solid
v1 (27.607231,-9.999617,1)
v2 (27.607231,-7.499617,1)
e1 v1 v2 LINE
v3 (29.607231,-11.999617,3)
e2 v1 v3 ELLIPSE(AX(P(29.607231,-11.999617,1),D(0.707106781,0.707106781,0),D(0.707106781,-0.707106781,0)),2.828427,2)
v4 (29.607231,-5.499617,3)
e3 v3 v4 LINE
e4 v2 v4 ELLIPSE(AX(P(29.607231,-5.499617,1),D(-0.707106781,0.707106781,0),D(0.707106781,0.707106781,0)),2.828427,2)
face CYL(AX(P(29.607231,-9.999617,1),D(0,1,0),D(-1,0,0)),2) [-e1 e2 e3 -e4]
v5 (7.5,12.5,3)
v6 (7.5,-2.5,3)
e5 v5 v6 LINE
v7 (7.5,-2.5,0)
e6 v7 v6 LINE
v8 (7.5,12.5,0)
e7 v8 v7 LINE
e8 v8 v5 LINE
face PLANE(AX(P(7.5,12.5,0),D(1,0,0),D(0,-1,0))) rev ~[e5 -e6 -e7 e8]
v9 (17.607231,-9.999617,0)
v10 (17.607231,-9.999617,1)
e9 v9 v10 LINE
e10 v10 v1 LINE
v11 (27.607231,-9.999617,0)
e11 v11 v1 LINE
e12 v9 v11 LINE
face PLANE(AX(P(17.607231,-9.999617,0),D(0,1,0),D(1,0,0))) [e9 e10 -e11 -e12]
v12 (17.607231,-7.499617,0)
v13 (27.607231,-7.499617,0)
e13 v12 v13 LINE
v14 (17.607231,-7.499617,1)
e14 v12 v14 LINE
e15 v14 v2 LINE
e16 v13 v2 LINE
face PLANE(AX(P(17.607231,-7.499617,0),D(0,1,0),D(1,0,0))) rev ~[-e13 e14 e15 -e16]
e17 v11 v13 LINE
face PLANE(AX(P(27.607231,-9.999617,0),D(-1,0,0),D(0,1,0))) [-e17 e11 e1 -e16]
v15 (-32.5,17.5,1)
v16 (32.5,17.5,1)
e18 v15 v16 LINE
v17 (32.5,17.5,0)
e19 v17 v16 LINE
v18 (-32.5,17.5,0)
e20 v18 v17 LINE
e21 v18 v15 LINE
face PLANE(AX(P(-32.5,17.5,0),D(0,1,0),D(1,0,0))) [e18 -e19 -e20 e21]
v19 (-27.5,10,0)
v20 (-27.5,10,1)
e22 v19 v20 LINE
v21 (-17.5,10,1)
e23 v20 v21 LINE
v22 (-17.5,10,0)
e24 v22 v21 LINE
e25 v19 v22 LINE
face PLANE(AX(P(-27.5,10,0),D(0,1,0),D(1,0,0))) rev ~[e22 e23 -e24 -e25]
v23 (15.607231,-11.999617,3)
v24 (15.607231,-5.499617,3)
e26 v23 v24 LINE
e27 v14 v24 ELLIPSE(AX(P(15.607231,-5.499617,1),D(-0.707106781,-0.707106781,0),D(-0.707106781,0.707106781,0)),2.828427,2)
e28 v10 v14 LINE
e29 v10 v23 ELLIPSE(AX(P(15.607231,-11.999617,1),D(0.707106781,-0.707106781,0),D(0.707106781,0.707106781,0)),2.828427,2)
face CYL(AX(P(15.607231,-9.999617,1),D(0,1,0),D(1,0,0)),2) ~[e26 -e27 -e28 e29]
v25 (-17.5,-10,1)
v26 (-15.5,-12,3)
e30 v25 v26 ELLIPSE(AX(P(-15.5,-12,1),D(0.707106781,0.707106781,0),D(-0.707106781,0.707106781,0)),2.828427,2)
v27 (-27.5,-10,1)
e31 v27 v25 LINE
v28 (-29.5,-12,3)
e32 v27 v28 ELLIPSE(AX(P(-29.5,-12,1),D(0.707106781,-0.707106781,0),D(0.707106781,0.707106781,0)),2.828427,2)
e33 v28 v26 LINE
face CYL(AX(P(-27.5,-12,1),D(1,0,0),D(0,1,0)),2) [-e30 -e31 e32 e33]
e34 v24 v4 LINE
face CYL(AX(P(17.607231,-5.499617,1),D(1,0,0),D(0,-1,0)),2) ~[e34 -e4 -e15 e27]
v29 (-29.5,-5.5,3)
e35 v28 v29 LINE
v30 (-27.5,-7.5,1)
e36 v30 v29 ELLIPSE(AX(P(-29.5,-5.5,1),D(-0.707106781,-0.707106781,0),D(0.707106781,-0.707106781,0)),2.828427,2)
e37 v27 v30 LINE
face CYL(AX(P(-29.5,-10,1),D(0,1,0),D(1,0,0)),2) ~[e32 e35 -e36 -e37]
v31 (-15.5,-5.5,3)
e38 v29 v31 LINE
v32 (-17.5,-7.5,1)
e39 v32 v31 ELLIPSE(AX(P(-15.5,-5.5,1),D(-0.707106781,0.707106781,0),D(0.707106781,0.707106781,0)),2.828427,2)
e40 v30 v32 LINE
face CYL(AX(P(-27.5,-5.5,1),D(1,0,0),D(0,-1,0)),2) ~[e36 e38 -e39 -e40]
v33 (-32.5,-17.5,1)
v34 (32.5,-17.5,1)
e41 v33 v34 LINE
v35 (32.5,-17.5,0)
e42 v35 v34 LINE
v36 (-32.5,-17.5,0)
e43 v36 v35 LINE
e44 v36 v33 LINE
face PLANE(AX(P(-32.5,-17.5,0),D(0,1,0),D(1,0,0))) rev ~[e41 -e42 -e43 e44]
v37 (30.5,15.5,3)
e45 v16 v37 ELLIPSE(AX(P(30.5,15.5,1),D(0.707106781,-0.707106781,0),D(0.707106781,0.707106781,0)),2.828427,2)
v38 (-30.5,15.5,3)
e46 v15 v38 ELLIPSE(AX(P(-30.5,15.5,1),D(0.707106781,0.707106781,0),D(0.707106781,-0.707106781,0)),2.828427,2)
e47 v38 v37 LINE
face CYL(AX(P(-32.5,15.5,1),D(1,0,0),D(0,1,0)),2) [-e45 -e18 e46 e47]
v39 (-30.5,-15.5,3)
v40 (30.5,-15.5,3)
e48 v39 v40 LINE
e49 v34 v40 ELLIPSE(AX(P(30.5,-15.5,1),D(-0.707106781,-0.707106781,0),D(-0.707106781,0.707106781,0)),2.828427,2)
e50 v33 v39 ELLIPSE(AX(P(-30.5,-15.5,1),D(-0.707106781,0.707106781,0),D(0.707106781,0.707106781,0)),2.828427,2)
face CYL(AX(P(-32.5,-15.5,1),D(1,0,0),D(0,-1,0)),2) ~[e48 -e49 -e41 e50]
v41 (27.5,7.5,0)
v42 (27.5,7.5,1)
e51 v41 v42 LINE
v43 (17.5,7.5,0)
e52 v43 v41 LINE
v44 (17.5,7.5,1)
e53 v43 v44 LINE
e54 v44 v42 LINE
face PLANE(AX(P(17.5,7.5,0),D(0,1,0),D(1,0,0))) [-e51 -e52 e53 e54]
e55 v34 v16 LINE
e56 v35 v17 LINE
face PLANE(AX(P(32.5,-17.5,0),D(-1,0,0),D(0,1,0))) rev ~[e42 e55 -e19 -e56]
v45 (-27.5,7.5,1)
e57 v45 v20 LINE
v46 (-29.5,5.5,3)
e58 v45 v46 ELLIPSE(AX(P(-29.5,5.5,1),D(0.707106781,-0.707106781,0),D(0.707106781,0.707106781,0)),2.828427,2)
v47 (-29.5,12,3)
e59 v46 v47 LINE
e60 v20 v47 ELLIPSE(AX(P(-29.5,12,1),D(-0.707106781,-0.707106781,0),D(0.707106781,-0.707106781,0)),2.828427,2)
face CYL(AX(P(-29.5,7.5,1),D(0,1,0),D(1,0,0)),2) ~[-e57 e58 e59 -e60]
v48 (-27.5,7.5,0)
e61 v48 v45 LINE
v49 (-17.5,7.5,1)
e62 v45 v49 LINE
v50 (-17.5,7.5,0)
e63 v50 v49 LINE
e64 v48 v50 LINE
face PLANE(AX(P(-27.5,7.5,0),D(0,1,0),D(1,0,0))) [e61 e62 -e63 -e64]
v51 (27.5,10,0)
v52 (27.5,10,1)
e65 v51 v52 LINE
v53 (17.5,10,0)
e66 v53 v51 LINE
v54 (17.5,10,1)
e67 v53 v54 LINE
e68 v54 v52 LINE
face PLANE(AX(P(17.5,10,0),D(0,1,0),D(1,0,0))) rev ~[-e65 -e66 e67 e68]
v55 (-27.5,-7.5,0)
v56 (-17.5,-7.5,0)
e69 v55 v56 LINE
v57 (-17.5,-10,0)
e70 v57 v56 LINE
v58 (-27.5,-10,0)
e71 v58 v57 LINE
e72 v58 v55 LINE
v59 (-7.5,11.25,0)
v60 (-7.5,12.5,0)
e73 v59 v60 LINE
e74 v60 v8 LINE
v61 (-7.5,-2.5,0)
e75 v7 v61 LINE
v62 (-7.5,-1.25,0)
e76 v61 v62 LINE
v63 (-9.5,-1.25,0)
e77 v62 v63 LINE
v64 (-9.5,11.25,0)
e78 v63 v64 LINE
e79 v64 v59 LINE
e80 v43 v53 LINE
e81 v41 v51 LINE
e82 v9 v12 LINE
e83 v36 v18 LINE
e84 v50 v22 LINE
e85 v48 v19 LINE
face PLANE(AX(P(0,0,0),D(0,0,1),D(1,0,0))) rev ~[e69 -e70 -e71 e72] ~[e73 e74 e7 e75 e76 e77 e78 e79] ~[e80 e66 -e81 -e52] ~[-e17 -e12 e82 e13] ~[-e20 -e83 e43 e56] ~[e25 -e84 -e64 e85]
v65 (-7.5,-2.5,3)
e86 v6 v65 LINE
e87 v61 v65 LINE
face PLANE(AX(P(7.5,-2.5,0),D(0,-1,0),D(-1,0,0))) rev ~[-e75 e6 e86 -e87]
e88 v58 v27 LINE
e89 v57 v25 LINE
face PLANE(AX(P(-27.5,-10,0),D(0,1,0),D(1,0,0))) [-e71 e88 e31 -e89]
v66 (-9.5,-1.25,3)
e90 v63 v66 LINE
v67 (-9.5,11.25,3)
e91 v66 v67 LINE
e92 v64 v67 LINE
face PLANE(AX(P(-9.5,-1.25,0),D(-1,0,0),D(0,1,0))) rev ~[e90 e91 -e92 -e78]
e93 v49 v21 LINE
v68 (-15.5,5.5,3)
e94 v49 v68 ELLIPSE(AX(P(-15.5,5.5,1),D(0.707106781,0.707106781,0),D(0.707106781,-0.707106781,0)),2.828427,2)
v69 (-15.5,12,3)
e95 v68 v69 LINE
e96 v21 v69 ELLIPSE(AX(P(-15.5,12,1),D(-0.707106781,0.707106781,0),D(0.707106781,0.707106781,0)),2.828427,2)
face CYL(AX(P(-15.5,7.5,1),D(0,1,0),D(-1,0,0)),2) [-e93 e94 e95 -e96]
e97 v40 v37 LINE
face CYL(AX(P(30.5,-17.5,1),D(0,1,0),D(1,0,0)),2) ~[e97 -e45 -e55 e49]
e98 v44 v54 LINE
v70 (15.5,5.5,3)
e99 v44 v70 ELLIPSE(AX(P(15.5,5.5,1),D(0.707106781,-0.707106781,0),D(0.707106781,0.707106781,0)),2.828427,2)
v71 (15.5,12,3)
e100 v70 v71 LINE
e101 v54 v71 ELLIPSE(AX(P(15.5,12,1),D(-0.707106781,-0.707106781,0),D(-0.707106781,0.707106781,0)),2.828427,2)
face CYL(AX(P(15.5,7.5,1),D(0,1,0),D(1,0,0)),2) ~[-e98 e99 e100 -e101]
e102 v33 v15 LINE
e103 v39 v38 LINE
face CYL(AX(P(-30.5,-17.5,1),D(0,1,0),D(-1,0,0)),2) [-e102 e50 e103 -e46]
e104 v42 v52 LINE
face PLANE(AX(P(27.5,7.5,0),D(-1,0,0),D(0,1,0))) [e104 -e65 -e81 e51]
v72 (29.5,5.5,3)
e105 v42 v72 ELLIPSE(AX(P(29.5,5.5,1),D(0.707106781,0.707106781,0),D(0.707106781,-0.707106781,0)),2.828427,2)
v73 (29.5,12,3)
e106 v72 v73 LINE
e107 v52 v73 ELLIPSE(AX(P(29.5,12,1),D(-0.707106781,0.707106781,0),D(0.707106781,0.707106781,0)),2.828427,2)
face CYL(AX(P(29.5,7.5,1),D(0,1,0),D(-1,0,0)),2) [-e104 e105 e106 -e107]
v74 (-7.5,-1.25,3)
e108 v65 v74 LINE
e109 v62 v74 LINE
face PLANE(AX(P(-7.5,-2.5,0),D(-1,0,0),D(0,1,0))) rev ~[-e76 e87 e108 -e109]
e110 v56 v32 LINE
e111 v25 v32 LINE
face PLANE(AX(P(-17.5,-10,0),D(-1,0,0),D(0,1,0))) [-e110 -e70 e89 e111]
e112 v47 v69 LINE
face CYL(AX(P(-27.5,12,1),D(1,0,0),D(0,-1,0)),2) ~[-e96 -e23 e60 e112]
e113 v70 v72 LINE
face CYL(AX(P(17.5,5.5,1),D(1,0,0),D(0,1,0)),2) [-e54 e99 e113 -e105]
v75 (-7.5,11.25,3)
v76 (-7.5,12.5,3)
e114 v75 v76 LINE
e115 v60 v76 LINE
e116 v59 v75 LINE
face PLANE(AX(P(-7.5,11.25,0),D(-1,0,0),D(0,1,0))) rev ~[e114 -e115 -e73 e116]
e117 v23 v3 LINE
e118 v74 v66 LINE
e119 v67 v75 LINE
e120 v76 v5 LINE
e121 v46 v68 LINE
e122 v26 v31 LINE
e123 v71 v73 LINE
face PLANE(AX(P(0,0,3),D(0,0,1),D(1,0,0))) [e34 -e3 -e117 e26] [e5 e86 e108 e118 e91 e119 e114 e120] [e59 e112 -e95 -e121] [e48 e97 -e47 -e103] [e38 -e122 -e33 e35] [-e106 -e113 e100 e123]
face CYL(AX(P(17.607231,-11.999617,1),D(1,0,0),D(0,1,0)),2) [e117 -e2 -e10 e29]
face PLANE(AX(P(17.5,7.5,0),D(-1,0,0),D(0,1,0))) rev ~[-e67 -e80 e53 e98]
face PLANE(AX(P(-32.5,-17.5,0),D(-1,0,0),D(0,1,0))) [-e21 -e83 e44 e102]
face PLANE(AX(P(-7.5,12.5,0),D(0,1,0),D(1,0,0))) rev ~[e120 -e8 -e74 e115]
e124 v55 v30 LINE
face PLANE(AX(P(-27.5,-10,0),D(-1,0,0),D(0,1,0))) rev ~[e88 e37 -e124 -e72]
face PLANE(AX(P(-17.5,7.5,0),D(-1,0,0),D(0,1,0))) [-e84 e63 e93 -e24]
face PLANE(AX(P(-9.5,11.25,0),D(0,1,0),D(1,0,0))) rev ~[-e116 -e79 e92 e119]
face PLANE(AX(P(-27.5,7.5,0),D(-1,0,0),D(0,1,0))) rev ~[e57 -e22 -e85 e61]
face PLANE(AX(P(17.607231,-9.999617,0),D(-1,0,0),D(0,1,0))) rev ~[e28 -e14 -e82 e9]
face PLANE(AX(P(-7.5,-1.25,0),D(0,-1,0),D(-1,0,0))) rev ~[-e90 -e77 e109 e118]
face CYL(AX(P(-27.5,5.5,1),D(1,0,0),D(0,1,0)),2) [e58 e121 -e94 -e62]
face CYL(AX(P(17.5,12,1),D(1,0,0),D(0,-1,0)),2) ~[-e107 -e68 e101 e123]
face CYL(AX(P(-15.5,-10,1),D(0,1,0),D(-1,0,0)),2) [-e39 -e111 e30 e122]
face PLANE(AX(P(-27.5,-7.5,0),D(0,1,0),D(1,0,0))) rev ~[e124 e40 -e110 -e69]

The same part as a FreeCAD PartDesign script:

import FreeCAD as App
import Part
import Sketcher


def edges_at(feature, points):
    """Names of the edges that pass closest to the given points."""
    edges = feature.Shape.Edges
    near = lambda p: min(range(len(edges)), key=lambda i: edges[i].distToShape(Part.Vertex(*p))[0])
    return sorted({f"Edge{near(p) + 1}" for p in points})

doc = App.newDocument("Part")
body = doc.addObject("PartDesign::Body", "Body")

sketch1 = doc.addObject("Sketcher::SketchObject", "Sketch")
body.addObject(sketch1)
sketch1.AttachmentSupport = (doc.XY_Plane, [""])
sketch1.MapMode = "FlatFace"
sketch1.addGeometry([
    Part.LineSegment(App.Vector(-32.5, 17.5, 0), App.Vector(-32.5, -17.5, 0)),
    Part.LineSegment(App.Vector(-32.5, -17.5, 0), App.Vector(32.5, -17.5, 0)),
    Part.LineSegment(App.Vector(32.5, -17.5, 0), App.Vector(32.5, 17.5, 0)),
    Part.LineSegment(App.Vector(32.5, 17.5, 0), App.Vector(-32.5, 17.5, 0)),
    Part.LineSegment(App.Vector(-17.5, -10, 0), App.Vector(-27.5, -10, 0)),
    Part.LineSegment(App.Vector(-27.5, -10, 0), App.Vector(-27.5, -7.5, 0)),
    Part.LineSegment(App.Vector(-27.5, -7.5, 0), App.Vector(-17.5, -7.5, 0)),
    Part.LineSegment(App.Vector(-17.5, -7.5, 0), App.Vector(-17.5, -10, 0)),
    Part.LineSegment(App.Vector(27.6, -10, 0), App.Vector(17.6, -10, 0)),
    Part.LineSegment(App.Vector(17.6, -10, 0), App.Vector(17.6, -7.5, 0)),
    Part.LineSegment(App.Vector(17.6, -7.5, 0), App.Vector(27.6, -7.5, 0)),
    Part.LineSegment(App.Vector(27.6, -7.5, 0), App.Vector(27.6, -10, 0)),
    Part.LineSegment(App.Vector(7.5, 12.5, 0), App.Vector(7.5, -2.5, 0)),
    Part.LineSegment(App.Vector(7.5, -2.5, 0), App.Vector(-7.5, -2.5, 0)),
    Part.LineSegment(App.Vector(-7.5, -2.5, 0), App.Vector(-7.5, -1.2, 0)),
    Part.LineSegment(App.Vector(-7.5, -1.2, 0), App.Vector(-9.5, -1.2, 0)),
    Part.LineSegment(App.Vector(-9.5, -1.2, 0), App.Vector(-9.5, 11.2, 0)),
    Part.LineSegment(App.Vector(-9.5, 11.2, 0), App.Vector(-7.5, 11.2, 0)),
    Part.LineSegment(App.Vector(-7.5, 11.2, 0), App.Vector(-7.5, 12.5, 0)),
    Part.LineSegment(App.Vector(-7.5, 12.5, 0), App.Vector(7.5, 12.5, 0)),
    Part.LineSegment(App.Vector(-17.5, 7.5, 0), App.Vector(-27.5, 7.5, 0)),
    Part.LineSegment(App.Vector(-27.5, 7.5, 0), App.Vector(-27.5, 10, 0)),
    Part.LineSegment(App.Vector(-27.5, 10, 0), App.Vector(-17.5, 10, 0)),
    Part.LineSegment(App.Vector(-17.5, 10, 0), App.Vector(-17.5, 7.5, 0)),
    Part.LineSegment(App.Vector(27.5, 7.5, 0), App.Vector(17.5, 7.5, 0)),
    Part.LineSegment(App.Vector(17.5, 7.5, 0), App.Vector(17.5, 10, 0)),
    Part.LineSegment(App.Vector(17.5, 10, 0), App.Vector(27.5, 10, 0)),
    Part.LineSegment(App.Vector(27.5, 10, 0), App.Vector(27.5, 7.5, 0)),
], False)
sketch1.addConstraint([
    Sketcher.Constraint("Coincident", 0, 2, 1, 1),
    Sketcher.Constraint("Coincident", 1, 2, 2, 1),
    Sketcher.Constraint("Coincident", 2, 2, 3, 1),
    Sketcher.Constraint("Coincident", 3, 2, 0, 1),
    Sketcher.Constraint("Coincident", 4, 2, 5, 1),
    Sketcher.Constraint("Coincident", 5, 2, 6, 1),
    Sketcher.Constraint("Coincident", 6, 2, 7, 1),
    Sketcher.Constraint("Coincident", 7, 2, 4, 1),
    Sketcher.Constraint("Coincident", 8, 2, 9, 1),
    Sketcher.Constraint("Coincident", 9, 2, 10, 1),
    Sketcher.Constraint("Coincident", 10, 2, 11, 1),
    Sketcher.Constraint("Coincident", 11, 2, 8, 1),
    Sketcher.Constraint("Coincident", 12, 2, 13, 1),
    Sketcher.Constraint("Coincident", 13, 2, 14, 1),
    Sketcher.Constraint("Coincident", 14, 2, 15, 1),
    Sketcher.Constraint("Coincident", 15, 2, 16, 1),
    Sketcher.Constraint("Coincident", 16, 2, 17, 1),
    Sketcher.Constraint("Coincident", 17, 2, 18, 1),
    Sketcher.Constraint("Coincident", 18, 2, 19, 1),
    Sketcher.Constraint("Coincident", 19, 2, 12, 1),
    Sketcher.Constraint("Coincident", 20, 2, 21, 1),
    Sketcher.Constraint("Coincident", 21, 2, 22, 1),
    Sketcher.Constraint("Coincident", 22, 2, 23, 1),
    Sketcher.Constraint("Coincident", 23, 2, 20, 1),
    Sketcher.Constraint("Coincident", 24, 2, 25, 1),
    Sketcher.Constraint("Coincident", 25, 2, 26, 1),
    Sketcher.Constraint("Coincident", 26, 2, 27, 1),
    Sketcher.Constraint("Coincident", 27, 2, 24, 1),
    Sketcher.Constraint("Vertical", 0),
    Sketcher.Constraint("Horizontal", 1),
    Sketcher.Constraint("Vertical", 2),
    Sketcher.Constraint("Horizontal", 3),
    Sketcher.Constraint("Horizontal", 4),
    Sketcher.Constraint("Vertical", 5),
    Sketcher.Constraint("Horizontal", 6),
    Sketcher.Constraint("Vertical", 7),
    Sketcher.Constraint("Horizontal", 8),
    Sketcher.Constraint("Vertical", 9),
    Sketcher.Constraint("Horizontal", 10),
    Sketcher.Constraint("Vertical", 11),
    Sketcher.Constraint("Vertical", 12),
    Sketcher.Constraint("Horizontal", 13),
    Sketcher.Constraint("Vertical", 14),
    Sketcher.Constraint("Horizontal", 15),
    Sketcher.Constraint("Vertical", 16),
    Sketcher.Constraint("Horizontal", 17),
    Sketcher.Constraint("Vertical", 18),
    Sketcher.Constraint("Horizontal", 19),
    Sketcher.Constraint("Horizontal", 20),
    Sketcher.Constraint("Vertical", 21),
    Sketcher.Constraint("Horizontal", 22),
    Sketcher.Constraint("Vertical", 23),
    Sketcher.Constraint("Horizontal", 24),
    Sketcher.Constraint("Vertical", 25),
    Sketcher.Constraint("Horizontal", 26),
    Sketcher.Constraint("Vertical", 27),
    Sketcher.Constraint("Symmetric", 0, 2, 2, 2, -1, 1),
    Sketcher.Constraint("Symmetric", 6, 2, 24, 2, -1, 1),
    Sketcher.Constraint("Symmetric", 4, 2, 26, 2, -1, 1),
    Sketcher.Constraint("Symmetric", 23, 2, 24, 2, -2),
    Sketcher.Constraint("Symmetric", 21, 2, 26, 2, -2),
    Sketcher.Constraint("Vertical", 14, 2, 17, 2),
    Sketcher.Constraint("Equal", 6, 8),
    Sketcher.Constraint("Equal", 7, 9),
    Sketcher.Constraint("Equal", 19, 12),
    Sketcher.Constraint("Equal", 14, 18),
    Sketcher.Constraint("DistanceX", 1, 1, 1, 2, 65.0),
    Sketcher.Constraint("DistanceX", 4, 2, 4, 1, 10.0),
    Sketcher.Constraint("DistanceX", 13, 2, 13, 1, 15.0),
    Sketcher.Constraint("DistanceX", 15, 2, 15, 1, 2.0),
    Sketcher.Constraint("DistanceY", 0, 2, 0, 1, 35.0),
    Sketcher.Constraint("DistanceY", 5, 1, 5, 2, 2.5),
    Sketcher.Constraint("DistanceY", 16, 1, 16, 2, 12.5),
    Sketcher.Constraint("DistanceY", 4, 2, -1, 1, 10.0),
    Sketcher.Constraint("DistanceX", 0, 2, 4, 2, 5.0),
    Sketcher.Constraint("DistanceX", 6, 2, 12, 2, 25.0),
    Sketcher.Constraint("DistanceY", 6, 2, 12, 2, 5.0),
    Sketcher.Constraint("DistanceX", -1, 1, 8, 2, 17.607231),
    Sketcher.Constraint("DistanceY", 8, 2, -1, 1, 9.999617),
])
pad1 = doc.addObject("PartDesign::Pad", "Pad")
body.addObject(pad1)
pad1.Profile = sketch1
pad1.Length = 3
doc.recompute()

fillet = doc.addObject("PartDesign::Fillet", "Fillet")
body.addObject(fillet)
fillet.Base = (pad1, edges_at(pad1, [
    (0, 17.5, 3),
    (-32.5, 0, 3),
    (-22.5, 10, 3),
    (-22.5, 7.5, 3),
    (-27.5, 8.75, 3),
    (-17.5, 8.75, 3),
    (-22.5, -7.5, 3),
    (-27.5, -8.75, 3),
    (-17.5, -8.75, 3),
    (-22.5, -10, 3),
    (22.607, -10, 3),
    (17.607, -8.75, 3),
    (22.607, -7.5, 3),
    (27.607, -8.75, 3),
    (22.5, 7.5, 3),
    (17.5, 8.75, 3),
    (22.5, 10, 3),
    (27.5, 8.75, 3),
    (32.5, 0, 3),
    (0, -17.5, 3),
]))
fillet.Radius = 2

doc.recompute()
